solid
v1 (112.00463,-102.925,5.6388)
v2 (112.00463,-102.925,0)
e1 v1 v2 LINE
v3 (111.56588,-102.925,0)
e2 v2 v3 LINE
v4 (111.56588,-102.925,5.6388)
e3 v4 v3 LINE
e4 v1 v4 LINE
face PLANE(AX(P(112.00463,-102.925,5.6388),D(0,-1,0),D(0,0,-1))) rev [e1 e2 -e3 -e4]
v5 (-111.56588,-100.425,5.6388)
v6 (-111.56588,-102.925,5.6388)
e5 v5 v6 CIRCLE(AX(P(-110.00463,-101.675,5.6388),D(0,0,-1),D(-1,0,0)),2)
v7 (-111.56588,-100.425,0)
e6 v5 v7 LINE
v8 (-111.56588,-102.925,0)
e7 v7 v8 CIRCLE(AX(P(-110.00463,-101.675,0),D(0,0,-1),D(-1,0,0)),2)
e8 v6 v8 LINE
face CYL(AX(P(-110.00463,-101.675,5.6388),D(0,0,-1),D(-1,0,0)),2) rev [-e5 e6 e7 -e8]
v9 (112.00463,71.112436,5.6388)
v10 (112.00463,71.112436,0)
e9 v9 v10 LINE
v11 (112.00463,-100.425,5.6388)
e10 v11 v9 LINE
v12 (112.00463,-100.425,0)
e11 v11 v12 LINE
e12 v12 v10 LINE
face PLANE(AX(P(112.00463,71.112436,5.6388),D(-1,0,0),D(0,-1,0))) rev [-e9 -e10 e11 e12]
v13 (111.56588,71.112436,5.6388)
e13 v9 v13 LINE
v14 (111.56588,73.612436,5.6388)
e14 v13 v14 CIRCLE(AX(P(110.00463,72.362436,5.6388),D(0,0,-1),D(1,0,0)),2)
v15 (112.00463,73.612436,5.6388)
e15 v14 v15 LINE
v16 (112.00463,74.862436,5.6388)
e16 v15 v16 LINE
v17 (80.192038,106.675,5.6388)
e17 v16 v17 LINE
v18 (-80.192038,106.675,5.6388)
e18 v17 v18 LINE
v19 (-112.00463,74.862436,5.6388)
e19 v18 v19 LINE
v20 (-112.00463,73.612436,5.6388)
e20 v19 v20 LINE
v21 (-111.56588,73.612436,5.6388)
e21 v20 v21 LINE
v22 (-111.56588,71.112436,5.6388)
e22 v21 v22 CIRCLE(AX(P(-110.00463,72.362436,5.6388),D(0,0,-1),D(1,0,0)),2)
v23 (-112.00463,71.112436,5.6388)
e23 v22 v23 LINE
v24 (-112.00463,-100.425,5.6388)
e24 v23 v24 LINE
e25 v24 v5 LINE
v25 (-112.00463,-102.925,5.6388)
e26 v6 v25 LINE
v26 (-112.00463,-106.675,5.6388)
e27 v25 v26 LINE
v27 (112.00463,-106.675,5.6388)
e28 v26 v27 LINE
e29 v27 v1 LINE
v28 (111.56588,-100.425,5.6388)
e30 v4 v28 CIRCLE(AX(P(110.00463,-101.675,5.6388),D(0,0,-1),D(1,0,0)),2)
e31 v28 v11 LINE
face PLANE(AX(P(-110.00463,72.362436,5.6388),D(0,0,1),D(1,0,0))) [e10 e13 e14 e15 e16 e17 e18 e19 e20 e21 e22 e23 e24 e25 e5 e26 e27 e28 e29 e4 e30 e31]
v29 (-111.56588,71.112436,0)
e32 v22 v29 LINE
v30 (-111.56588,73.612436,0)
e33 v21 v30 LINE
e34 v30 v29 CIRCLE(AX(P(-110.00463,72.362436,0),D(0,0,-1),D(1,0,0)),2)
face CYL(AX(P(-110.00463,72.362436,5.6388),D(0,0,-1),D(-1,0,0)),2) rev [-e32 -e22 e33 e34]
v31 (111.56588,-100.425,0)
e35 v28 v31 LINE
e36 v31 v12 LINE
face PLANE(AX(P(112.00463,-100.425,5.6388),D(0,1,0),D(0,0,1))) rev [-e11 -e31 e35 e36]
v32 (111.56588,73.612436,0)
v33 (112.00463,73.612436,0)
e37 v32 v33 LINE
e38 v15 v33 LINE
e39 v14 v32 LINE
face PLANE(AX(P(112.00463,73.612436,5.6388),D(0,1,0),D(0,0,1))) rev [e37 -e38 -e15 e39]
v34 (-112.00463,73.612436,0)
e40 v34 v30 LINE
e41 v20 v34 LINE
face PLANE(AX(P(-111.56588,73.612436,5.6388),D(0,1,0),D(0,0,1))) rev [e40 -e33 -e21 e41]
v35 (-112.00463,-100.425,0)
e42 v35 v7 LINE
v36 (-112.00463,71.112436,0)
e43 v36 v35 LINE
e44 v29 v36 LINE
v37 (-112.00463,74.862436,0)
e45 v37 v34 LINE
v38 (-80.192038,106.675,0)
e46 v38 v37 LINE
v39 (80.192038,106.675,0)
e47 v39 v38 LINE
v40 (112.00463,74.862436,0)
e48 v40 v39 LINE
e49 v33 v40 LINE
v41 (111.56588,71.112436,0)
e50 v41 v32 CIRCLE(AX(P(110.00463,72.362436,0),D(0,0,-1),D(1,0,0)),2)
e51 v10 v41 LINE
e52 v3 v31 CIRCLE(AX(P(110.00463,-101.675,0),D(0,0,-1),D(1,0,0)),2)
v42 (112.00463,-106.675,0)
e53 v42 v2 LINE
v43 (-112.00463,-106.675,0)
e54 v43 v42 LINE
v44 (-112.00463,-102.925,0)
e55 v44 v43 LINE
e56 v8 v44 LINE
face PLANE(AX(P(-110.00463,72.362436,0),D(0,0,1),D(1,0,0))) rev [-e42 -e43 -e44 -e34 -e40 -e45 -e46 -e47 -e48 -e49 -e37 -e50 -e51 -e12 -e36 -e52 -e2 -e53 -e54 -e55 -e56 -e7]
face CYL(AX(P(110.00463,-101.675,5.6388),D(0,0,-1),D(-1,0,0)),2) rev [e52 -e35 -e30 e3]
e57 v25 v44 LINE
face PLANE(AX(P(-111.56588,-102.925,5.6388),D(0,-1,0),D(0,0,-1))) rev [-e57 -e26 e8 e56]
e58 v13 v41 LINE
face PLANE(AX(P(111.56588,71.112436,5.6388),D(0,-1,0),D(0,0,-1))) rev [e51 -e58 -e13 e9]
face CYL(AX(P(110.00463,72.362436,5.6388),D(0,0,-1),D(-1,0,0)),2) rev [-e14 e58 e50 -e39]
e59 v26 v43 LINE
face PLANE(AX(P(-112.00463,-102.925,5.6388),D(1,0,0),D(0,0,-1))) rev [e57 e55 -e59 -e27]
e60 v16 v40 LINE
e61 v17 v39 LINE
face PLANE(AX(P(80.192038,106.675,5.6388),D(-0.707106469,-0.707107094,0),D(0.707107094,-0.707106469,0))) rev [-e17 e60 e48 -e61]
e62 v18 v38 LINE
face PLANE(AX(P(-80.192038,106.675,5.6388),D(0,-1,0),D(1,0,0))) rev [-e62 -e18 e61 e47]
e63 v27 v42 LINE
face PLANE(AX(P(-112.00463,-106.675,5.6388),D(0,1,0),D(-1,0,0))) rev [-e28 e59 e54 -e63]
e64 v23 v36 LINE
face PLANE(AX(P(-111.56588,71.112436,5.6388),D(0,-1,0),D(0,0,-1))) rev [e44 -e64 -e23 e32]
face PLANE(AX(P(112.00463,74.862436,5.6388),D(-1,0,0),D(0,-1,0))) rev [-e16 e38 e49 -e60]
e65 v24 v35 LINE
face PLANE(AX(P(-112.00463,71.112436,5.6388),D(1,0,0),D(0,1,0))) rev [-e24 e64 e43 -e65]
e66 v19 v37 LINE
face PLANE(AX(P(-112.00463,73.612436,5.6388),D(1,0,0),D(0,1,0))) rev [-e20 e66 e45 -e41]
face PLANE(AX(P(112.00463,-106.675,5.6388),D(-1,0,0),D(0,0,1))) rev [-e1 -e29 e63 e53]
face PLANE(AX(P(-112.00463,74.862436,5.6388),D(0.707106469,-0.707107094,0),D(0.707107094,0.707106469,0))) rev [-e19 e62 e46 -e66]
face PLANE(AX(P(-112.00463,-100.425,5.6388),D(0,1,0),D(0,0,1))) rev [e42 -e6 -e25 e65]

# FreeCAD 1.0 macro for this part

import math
import FreeCAD as App
import Part
import Sketcher
from FreeCAD import Vector

doc = App.newDocument("Part")
body = doc.addObject("PartDesign::Body", "Body")

# Sketch on XY plane
sketch1 = body.newObject("Sketcher::SketchObject", "Sketch")
sketch1.AttachmentSupport = (doc.getObject("XY_Plane"), [""])
sketch1.MapMode = "FlatFace"
sketch1.addGeometry(Part.LineSegment(Vector(-112, 73.61, 0), Vector(-111.57, 73.61, 0)), False)
sketch1.addGeometry(Part.ArcOfCircle(Part.Circle(Vector(-110, 72.36, 0), Vector(0, 0, 1), 2), math.radians(-141), math.radians(141)), False)
sketch1.addGeometry(Part.LineSegment(Vector(-111.57, 71.11, 0), Vector(-112, 71.11, 0)), False)
sketch1.addGeometry(Part.LineSegment(Vector(-112, 71.11, 0), Vector(-112, -100.42, 0)), False)
sketch1.addGeometry(Part.LineSegment(Vector(-112, -100.42, 0), Vector(-111.57, -100.42, 0)), False)
sketch1.addGeometry(Part.ArcOfCircle(Part.Circle(Vector(-110, -101.67, 0), Vector(0, 0, 1), 2), math.radians(-141), math.radians(141)), False)
sketch1.addGeometry(Part.LineSegment(Vector(-111.57, -102.92, 0), Vector(-112, -102.92, 0)), False)
sketch1.addGeometry(Part.LineSegment(Vector(-112, -102.92, 0), Vector(-112, -106.67, 0)), False)
sketch1.addGeometry(Part.LineSegment(Vector(-112, -106.67, 0), Vector(112, -106.67, 0)), False)
sketch1.addGeometry(Part.LineSegment(Vector(112, -106.67, 0), Vector(112, -102.92, 0)), False)
sketch1.addGeometry(Part.LineSegment(Vector(112, -102.92, 0), Vector(111.57, -102.92, 0)), False)
sketch1.addGeometry(Part.ArcOfCircle(Part.Circle(Vector(110, -101.67, 0), Vector(0, 0, 1), 2), math.radians(39), math.radians(321)), False)
sketch1.addGeometry(Part.LineSegment(Vector(111.57, -100.42, 0), Vector(112, -100.42, 0)), False)
sketch1.addGeometry(Part.LineSegment(Vector(112, -100.42, 0), Vector(112, 71.11, 0)), False)
sketch1.addGeometry(Part.LineSegment(Vector(112, 71.11, 0), Vector(111.57, 71.11, 0)), False)
sketch1.addGeometry(Part.ArcOfCircle(Part.Circle(Vector(110, 72.36, 0), Vector(0, 0, 1), 2), math.radians(39), math.radians(321)), False)
sketch1.addGeometry(Part.LineSegment(Vector(111.57, 73.61, 0), Vector(112, 73.61, 0)), False)
sketch1.addGeometry(Part.LineSegment(Vector(112, 73.61, 0), Vector(112, 74.86, 0)), False)
sketch1.addGeometry(Part.LineSegment(Vector(112, 74.86, 0), Vector(80.19, 106.67, 0)), False)
sketch1.addGeometry(Part.LineSegment(Vector(80.19, 106.67, 0), Vector(-80.19, 106.67, 0)), False)
sketch1.addGeometry(Part.LineSegment(Vector(-80.19, 106.67, 0), Vector(-112, 74.86, 0)), False)
sketch1.addGeometry(Part.LineSegment(Vector(-112, 74.86, 0), Vector(-112, 73.61, 0)), False)
sketch1.addConstraint(Sketcher.Constraint("Coincident", 0, 2, 1, 2))
sketch1.addConstraint(Sketcher.Constraint("Coincident", 1, 1, 2, 1))
sketch1.addConstraint(Sketcher.Constraint("Coincident", 2, 2, 3, 1))
sketch1.addConstraint(Sketcher.Constraint("Coincident", 3, 2, 4, 1))
sketch1.addConstraint(Sketcher.Constraint("Coincident", 4, 2, 5, 2))
sketch1.addConstraint(Sketcher.Constraint("Coincident", 5, 1, 6, 1))
sketch1.addConstraint(Sketcher.Constraint("Coincident", 6, 2, 7, 1))
sketch1.addConstraint(Sketcher.Constraint("Coincident", 7, 2, 8, 1))
sketch1.addConstraint(Sketcher.Constraint("Coincident", 8, 2, 9, 1))
sketch1.addConstraint(Sketcher.Constraint("Coincident", 9, 2, 10, 1))
sketch1.addConstraint(Sketcher.Constraint("Coincident", 10, 2, 11, 2))
sketch1.addConstraint(Sketcher.Constraint("Coincident", 11, 1, 12, 1))
sketch1.addConstraint(Sketcher.Constraint("Coincident", 12, 2, 13, 1))
sketch1.addConstraint(Sketcher.Constraint("Coincident", 13, 2, 14, 1))
sketch1.addConstraint(Sketcher.Constraint("Coincident", 14, 2, 15, 2))
sketch1.addConstraint(Sketcher.Constraint("Coincident", 15, 1, 16, 1))
sketch1.addConstraint(Sketcher.Constraint("Coincident", 16, 2, 17, 1))
sketch1.addConstraint(Sketcher.Constraint("Coincident", 17, 2, 18, 1))
sketch1.addConstraint(Sketcher.Constraint("Coincident", 18, 2, 19, 1))
sketch1.addConstraint(Sketcher.Constraint("Coincident", 19, 2, 20, 1))
sketch1.addConstraint(Sketcher.Constraint("Coincident", 20, 2, 21, 1))
sketch1.addConstraint(Sketcher.Constraint("Coincident", 21, 2, 0, 1))
sketch1.addConstraint(Sketcher.Constraint("Horizontal", 0))
sketch1.addConstraint(Sketcher.Constraint("Horizontal", 2))
sketch1.addConstraint(Sketcher.Constraint("Vertical", 3))
sketch1.addConstraint(Sketcher.Constraint("Horizontal", 4))
sketch1.addConstraint(Sketcher.Constraint("Horizontal", 6))
sketch1.addConstraint(Sketcher.Constraint("Vertical", 7))
sketch1.addConstraint(Sketcher.Constraint("Horizontal", 8))
sketch1.addConstraint(Sketcher.Constraint("Vertical", 9))
sketch1.addConstraint(Sketcher.Constraint("Horizontal", 10))
sketch1.addConstraint(Sketcher.Constraint("Horizontal", 12))
sketch1.addConstraint(Sketcher.Constraint("Vertical", 13))
sketch1.addConstraint(Sketcher.Constraint("Horizontal", 14))
sketch1.addConstraint(Sketcher.Constraint("Horizontal", 16))
sketch1.addConstraint(Sketcher.Constraint("Vertical", 17))
sketch1.addConstraint(Sketcher.Constraint("Horizontal", 19))
sketch1.addConstraint(Sketcher.Constraint("Vertical", 21))
sketch1.addConstraint(Sketcher.Constraint("Equal", 1, 5))
sketch1.addConstraint(Sketcher.Constraint("Equal", 5, 11))
sketch1.addConstraint(Sketcher.Constraint("Equal", 11, 15))
sketch1.addConstraint(Sketcher.Constraint("Symmetric", 5, 3, 11, 3, -2))
sketch1.addConstraint(Sketcher.Constraint("Symmetric", 1, 3, 15, 3, -2))
sketch1.addConstraint(Sketcher.Constraint("Symmetric", 6, 2, 9, 2, -2))
sketch1.addConstraint(Sketcher.Constraint("Symmetric", 3, 2, 12, 2, -2))
sketch1.addConstraint(Sketcher.Constraint("Symmetric", 17, 2, 20, 2, -2))
sketch1.addConstraint(Sketcher.Constraint("Perpendicular", 18, 20))
sketch1.addConstraint(Sketcher.Constraint("Horizontal", 2, 2, 13, 2))
sketch1.addConstraint(Sketcher.Constraint("Horizontal", 0, 2, 15, 1))
sketch1.addConstraint(Sketcher.Constraint("Vertical", 1, 3, 5, 3))
sketch1.addConstraint(Sketcher.Constraint("Vertical", 0, 2, 1, 1))
sketch1.addConstraint(Sketcher.Constraint("Vertical", 1, 1, 4, 2))
sketch1.addConstraint(Sketcher.Constraint("Vertical", 4, 2, 5, 1))
sketch1.addConstraint(Sketcher.Constraint("Vertical", 3, 2, 6, 2))
sketch1.addConstraint(Sketcher.Constraint("Vertical", 13, 2, 16, 2))
sketch1.addConstraint(Sketcher.Constraint("Equal", 18, 20))
sketch1.addConstraint(Sketcher.Constraint("Radius", 1, 2.0))
sketch1.addConstraint(Sketcher.Constraint("DistanceX", 2, 2, 1, 3, 2.0))
sketch1.addConstraint(Sketcher.Constraint("DistanceY", 7, 2, 5, 3, 5.0))
sketch1.addConstraint(Sketcher.Constraint("DistanceY", 7, 2, 7, 1, 3.75))
sketch1.addConstraint(Sketcher.Constraint("DistanceY", 17, 1, 17, 2, 1.25))
sketch1.addConstraint(Sketcher.Constraint("DistanceY", 5, 3, -1, 1, 101.675))
sketch1.addConstraint(Sketcher.Constraint("DistanceY", -1, 1, 18, 2, 106.675))
sketch1.addConstraint(Sketcher.Constraint("DistanceX", 8, 1, 8, 2, 224.00926))
sketch1.addConstraint(Sketcher.Constraint("Distance", 18, 44.98978))
pad1 = body.newObject("PartDesign::Pad", "Pad")
pad1.Profile = sketch1
pad1.Length = 5.6388

doc.recompute()
